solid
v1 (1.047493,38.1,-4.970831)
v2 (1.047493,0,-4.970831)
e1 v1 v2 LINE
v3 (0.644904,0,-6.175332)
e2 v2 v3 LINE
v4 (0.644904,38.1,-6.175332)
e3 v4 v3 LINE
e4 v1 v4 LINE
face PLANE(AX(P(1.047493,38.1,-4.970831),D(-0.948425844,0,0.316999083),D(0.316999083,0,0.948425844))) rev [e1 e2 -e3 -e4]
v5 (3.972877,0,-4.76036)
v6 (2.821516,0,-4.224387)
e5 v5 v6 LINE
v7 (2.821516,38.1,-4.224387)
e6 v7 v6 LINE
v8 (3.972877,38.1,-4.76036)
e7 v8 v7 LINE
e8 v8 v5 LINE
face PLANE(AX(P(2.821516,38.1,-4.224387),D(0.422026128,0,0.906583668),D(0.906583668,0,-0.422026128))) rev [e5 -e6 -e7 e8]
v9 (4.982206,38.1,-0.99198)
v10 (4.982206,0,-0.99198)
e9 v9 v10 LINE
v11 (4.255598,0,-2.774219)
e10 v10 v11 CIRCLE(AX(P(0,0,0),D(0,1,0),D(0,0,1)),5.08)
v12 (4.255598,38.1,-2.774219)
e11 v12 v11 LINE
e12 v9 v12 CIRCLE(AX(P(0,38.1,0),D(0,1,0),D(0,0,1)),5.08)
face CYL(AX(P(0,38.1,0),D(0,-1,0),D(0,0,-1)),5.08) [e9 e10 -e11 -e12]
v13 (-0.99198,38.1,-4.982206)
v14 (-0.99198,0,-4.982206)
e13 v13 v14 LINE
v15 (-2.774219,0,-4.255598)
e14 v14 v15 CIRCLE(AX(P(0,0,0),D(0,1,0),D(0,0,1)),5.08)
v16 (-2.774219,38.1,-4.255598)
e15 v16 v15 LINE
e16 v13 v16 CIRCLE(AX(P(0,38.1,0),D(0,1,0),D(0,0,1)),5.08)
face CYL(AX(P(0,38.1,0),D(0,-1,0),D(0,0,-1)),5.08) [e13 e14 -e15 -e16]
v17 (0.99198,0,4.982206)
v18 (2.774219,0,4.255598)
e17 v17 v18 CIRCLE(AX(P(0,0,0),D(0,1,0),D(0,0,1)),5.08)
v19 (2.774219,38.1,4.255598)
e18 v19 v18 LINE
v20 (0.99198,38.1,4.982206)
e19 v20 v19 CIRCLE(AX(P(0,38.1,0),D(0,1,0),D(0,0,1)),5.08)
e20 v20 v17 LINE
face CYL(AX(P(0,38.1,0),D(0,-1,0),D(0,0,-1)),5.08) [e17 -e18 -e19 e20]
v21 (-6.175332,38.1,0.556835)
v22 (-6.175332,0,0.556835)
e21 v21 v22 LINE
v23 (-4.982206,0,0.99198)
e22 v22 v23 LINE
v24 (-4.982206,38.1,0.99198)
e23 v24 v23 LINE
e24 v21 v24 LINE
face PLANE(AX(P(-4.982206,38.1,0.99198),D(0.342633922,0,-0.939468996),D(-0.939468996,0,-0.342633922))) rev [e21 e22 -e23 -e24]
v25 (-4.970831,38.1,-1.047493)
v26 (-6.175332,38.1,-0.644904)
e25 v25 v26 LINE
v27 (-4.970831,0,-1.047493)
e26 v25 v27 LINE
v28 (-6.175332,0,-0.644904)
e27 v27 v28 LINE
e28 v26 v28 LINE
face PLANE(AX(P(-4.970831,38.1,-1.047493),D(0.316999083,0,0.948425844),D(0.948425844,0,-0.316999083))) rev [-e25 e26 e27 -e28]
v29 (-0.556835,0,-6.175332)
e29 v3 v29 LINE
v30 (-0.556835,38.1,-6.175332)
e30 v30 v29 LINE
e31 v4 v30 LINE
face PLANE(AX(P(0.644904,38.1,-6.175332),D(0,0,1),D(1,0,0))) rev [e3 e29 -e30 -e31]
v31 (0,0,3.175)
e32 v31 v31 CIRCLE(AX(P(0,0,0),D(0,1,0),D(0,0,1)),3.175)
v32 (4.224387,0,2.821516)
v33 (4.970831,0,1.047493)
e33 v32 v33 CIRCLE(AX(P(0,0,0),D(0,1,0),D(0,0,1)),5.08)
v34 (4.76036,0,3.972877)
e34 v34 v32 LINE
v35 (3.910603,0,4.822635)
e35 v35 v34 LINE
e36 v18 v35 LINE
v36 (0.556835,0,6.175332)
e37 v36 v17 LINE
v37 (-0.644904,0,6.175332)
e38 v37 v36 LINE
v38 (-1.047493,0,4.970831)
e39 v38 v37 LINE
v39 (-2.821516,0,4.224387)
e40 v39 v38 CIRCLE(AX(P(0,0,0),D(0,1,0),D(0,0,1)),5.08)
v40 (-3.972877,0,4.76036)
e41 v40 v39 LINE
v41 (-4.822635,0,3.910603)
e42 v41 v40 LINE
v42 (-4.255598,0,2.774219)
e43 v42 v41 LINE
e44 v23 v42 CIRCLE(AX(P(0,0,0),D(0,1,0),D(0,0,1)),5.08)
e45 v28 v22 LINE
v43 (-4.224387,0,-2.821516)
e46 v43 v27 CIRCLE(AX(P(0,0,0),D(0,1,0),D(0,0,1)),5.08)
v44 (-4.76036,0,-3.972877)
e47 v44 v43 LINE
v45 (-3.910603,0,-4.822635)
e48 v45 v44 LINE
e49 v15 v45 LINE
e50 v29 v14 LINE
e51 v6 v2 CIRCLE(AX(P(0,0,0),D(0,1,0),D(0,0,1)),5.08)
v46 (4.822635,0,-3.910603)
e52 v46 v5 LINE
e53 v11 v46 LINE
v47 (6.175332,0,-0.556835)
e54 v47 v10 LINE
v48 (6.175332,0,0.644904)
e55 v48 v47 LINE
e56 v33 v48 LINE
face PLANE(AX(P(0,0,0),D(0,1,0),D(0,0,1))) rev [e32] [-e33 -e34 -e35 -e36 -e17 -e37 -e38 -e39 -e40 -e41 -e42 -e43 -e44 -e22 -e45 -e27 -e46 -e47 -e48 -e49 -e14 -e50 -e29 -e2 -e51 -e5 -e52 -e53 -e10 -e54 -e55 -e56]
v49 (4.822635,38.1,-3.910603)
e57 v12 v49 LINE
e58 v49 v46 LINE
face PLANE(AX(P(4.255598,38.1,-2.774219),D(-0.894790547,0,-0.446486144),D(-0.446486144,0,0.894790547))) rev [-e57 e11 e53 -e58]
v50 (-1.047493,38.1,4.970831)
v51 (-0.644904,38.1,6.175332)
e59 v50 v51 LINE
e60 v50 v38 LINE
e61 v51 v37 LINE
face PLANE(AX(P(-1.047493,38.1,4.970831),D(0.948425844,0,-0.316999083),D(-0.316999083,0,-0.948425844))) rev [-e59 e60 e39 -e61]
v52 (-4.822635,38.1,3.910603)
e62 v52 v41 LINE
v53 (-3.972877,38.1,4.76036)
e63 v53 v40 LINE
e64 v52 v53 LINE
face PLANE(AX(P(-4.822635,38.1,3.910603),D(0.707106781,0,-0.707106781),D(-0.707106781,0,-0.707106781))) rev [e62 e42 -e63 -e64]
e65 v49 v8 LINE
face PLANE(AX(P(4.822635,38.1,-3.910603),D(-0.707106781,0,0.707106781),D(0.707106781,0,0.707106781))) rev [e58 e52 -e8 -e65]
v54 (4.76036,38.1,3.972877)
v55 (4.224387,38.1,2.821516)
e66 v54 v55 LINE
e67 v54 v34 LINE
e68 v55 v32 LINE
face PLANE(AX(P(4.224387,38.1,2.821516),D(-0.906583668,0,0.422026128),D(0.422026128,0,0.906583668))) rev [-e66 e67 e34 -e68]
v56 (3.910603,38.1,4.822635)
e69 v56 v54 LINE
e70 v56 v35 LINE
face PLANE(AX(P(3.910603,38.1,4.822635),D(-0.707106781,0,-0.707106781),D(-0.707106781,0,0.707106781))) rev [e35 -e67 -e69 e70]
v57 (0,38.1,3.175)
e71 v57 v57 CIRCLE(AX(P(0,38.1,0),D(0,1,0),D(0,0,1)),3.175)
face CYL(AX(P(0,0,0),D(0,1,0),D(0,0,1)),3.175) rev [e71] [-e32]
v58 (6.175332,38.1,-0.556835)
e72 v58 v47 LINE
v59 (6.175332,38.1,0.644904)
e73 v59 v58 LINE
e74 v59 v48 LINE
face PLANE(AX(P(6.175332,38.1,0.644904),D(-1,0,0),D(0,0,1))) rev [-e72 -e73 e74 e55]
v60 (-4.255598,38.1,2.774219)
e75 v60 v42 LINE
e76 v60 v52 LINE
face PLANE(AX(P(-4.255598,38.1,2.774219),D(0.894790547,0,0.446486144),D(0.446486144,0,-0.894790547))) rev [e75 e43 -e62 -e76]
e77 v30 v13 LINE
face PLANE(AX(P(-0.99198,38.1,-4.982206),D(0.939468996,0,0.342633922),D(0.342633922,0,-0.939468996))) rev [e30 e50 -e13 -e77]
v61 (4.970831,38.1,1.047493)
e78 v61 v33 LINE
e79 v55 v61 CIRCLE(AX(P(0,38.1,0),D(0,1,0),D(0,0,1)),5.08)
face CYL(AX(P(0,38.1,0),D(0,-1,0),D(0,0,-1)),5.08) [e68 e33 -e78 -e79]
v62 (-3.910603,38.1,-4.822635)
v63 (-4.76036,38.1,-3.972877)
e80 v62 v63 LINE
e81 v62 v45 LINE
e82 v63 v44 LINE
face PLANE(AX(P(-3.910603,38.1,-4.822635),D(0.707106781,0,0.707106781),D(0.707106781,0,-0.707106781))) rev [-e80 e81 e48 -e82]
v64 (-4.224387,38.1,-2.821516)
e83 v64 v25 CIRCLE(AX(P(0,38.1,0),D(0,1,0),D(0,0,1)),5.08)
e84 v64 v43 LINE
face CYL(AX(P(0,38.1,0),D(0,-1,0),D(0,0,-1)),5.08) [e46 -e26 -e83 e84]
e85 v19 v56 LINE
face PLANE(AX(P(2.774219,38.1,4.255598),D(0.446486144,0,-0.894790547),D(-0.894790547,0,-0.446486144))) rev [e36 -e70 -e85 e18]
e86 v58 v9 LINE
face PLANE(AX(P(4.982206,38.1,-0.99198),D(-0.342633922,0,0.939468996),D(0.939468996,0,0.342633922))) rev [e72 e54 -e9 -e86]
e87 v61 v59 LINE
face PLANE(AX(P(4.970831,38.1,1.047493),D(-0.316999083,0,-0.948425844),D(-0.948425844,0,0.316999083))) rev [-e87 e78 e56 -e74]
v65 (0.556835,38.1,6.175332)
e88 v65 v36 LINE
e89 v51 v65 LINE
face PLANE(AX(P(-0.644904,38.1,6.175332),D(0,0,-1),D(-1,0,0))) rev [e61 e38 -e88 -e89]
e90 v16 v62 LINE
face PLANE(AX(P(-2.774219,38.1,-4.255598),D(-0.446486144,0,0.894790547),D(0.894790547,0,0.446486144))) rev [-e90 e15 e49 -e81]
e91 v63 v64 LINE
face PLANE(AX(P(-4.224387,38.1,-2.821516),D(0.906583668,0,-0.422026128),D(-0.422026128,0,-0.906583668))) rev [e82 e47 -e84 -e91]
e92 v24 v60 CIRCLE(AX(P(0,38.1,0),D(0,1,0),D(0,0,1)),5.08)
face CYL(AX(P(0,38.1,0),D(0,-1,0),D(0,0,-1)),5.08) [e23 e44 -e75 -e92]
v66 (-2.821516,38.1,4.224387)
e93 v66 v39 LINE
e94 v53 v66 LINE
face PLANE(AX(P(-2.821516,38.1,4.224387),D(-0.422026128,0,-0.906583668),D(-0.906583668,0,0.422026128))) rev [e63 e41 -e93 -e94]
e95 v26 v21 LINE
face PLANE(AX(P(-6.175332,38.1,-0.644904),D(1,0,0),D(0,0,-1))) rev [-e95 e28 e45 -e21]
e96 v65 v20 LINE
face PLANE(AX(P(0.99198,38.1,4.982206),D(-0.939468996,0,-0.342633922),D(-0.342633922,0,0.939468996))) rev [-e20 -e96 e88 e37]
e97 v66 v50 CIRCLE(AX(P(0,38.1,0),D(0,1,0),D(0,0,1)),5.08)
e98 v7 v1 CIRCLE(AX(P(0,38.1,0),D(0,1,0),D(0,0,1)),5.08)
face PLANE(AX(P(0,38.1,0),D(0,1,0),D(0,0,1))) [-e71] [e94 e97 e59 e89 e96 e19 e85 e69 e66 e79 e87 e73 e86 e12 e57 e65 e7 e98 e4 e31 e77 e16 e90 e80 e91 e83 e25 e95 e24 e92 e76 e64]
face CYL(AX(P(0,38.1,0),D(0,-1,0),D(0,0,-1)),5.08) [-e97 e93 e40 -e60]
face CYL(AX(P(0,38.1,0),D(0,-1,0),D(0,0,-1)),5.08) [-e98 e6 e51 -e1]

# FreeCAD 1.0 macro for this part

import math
import FreeCAD as App
import Part
import Sketcher

V = App.Vector
Q = App.Units.Quantity

doc = App.newDocument("Part")
body = doc.addObject("PartDesign::Body", "Body")

# Sketch on XZ plane
sketch1 = body.newObject("Sketcher::SketchObject", "Sketch")
sketch1.AttachmentSupport = (doc.getObject("XZ_Plane"), [""])
sketch1.MapMode = "FlatFace"
sketch1.addGeometry([
    Part.LineSegment(V(1, -5, 0), V(0.6, -6.2, 0)),  # 0
    Part.LineSegment(V(0.6, -6.2, 0), V(-0.6, -6.2, 0)),  # 1
    Part.LineSegment(V(-0.6, -6.2, 0), V(-1, -5, 0)),  # 2
    Part.ArcOfCircle(Part.Circle(V(0, 0, 0), V(0, 0, 1), 5.1), math.radians(-123), math.radians(-101)),  # 3
    Part.LineSegment(V(-2.8, -4.3, 0), V(-3.9, -4.8, 0)),  # 4
    Part.LineSegment(V(-3.9, -4.8, 0), V(-4.8, -4, 0)),  # 5
    Part.LineSegment(V(-4.8, -4, 0), V(-4.2, -2.8, 0)),  # 6
    Part.ArcOfCircle(Part.Circle(V(0, 0, 0), V(0, 0, 1), 5.1), math.radians(-168), math.radians(-146)),  # 7
    Part.LineSegment(V(-5, -1, 0), V(-6.2, -0.6, 0)),  # 8
    Part.LineSegment(V(-6.2, -0.6, 0), V(-6.2, 0.6, 0)),  # 9
    Part.LineSegment(V(-6.2, 0.6, 0), V(-5, 1, 0)),  # 10
    Part.ArcOfCircle(Part.Circle(V(0, 0, 0), V(0, 0, 1), 5.1), math.radians(147), math.radians(169)),  # 11
    Part.LineSegment(V(-4.3, 2.8, 0), V(-4.8, 3.9, 0)),  # 12
    Part.LineSegment(V(-4.8, 3.9, 0), V(-4, 4.8, 0)),  # 13
    Part.LineSegment(V(-4, 4.8, 0), V(-2.8, 4.2, 0)),  # 14
    Part.ArcOfCircle(Part.Circle(V(0, 0, 0), V(0, 0, 1), 5.1), math.radians(102), math.radians(124)),  # 15
    Part.LineSegment(V(-1, 5, 0), V(-0.6, 6.2, 0)),  # 16
    Part.LineSegment(V(-0.6, 6.2, 0), V(0.6, 6.2, 0)),  # 17
    Part.LineSegment(V(0.6, 6.2, 0), V(1, 5, 0)),  # 18
    Part.ArcOfCircle(Part.Circle(V(0, 0, 0), V(0, 0, 1), 5.1), math.radians(57), math.radians(79)),  # 19
    Part.LineSegment(V(2.8, 4.3, 0), V(3.9, 4.8, 0)),  # 20
    Part.LineSegment(V(3.9, 4.8, 0), V(4.8, 4, 0)),  # 21
    Part.LineSegment(V(4.8, 4, 0), V(4.2, 2.8, 0)),  # 22
    Part.ArcOfCircle(Part.Circle(V(0, 0, 0), V(0, 0, 1), 5.1), math.radians(12), math.radians(34)),  # 23
    Part.LineSegment(V(5, 1, 0), V(6.2, 0.6, 0)),  # 24
    Part.LineSegment(V(6.2, 0.6, 0), V(6.2, -0.6, 0)),  # 25
    Part.LineSegment(V(6.2, -0.6, 0), V(5, -1, 0)),  # 26
    Part.ArcOfCircle(Part.Circle(V(0, 0, 0), V(0, 0, 1), 5.1), math.radians(-33), math.radians(-11)),  # 27
    Part.LineSegment(V(4.3, -2.8, 0), V(4.8, -3.9, 0)),  # 28
    Part.LineSegment(V(4.8, -3.9, 0), V(4, -4.8, 0)),  # 29
    Part.LineSegment(V(4, -4.8, 0), V(2.8, -4.2, 0)),  # 30
    Part.ArcOfCircle(Part.Circle(V(0, 0, 0), V(0, 0, 1), 5.1), math.radians(-78), math.radians(-56)),  # 31
], False)
sketch1.addConstraint([
    Sketcher.Constraint("Coincident", 0, 2, 1, 1),
    Sketcher.Constraint("Coincident", 1, 2, 2, 1),
    Sketcher.Constraint("Coincident", 2, 2, 3, 2),
    Sketcher.Constraint("Coincident", 3, 1, 4, 1),
    Sketcher.Constraint("Coincident", 4, 2, 5, 1),
    Sketcher.Constraint("Coincident", 5, 2, 6, 1),
    Sketcher.Constraint("Coincident", 6, 2, 7, 2),
    Sketcher.Constraint("Coincident", 7, 1, 8, 1),
    Sketcher.Constraint("Coincident", 8, 2, 9, 1),
    Sketcher.Constraint("Coincident", 9, 2, 10, 1),
    Sketcher.Constraint("Coincident", 10, 2, 11, 2),
    Sketcher.Constraint("Coincident", 11, 1, 12, 1),
    Sketcher.Constraint("Coincident", 12, 2, 13, 1),
    Sketcher.Constraint("Coincident", 13, 2, 14, 1),
    Sketcher.Constraint("Coincident", 14, 2, 15, 2),
    Sketcher.Constraint("Coincident", 15, 1, 16, 1),
    Sketcher.Constraint("Coincident", 16, 2, 17, 1),
    Sketcher.Constraint("Coincident", 17, 2, 18, 1),
    Sketcher.Constraint("Coincident", 18, 2, 19, 2),
    Sketcher.Constraint("Coincident", 19, 1, 20, 1),
    Sketcher.Constraint("Coincident", 20, 2, 21, 1),
    Sketcher.Constraint("Coincident", 21, 2, 22, 1),
    Sketcher.Constraint("Coincident", 22, 2, 23, 2),
    Sketcher.Constraint("Coincident", 23, 1, 24, 1),
    Sketcher.Constraint("Coincident", 24, 2, 25, 1),
    Sketcher.Constraint("Coincident", 25, 2, 26, 1),
    Sketcher.Constraint("Coincident", 26, 2, 27, 2),
    Sketcher.Constraint("Coincident", 27, 1, 28, 1),
    Sketcher.Constraint("Coincident", 28, 2, 29, 1),
    Sketcher.Constraint("Coincident", 29, 2, 30, 1),
    Sketcher.Constraint("Coincident", 30, 2, 31, 2),
    Sketcher.Constraint("Coincident", 31, 1, 0, 1),
    Sketcher.Constraint("Horizontal", 1),
    Sketcher.Constraint("Vertical", 9),
    Sketcher.Constraint("Horizontal", 17),
    Sketcher.Constraint("Vertical", 25),
    Sketcher.Constraint("Coincident", 3, 3, -1, 1),
    Sketcher.Constraint("Coincident", 7, 3, -1, 1),
    Sketcher.Constraint("Coincident", 11, 3, -1, 1),
    Sketcher.Constraint("Coincident", 15, 3, -1, 1),
    Sketcher.Constraint("Coincident", 19, 3, -1, 1),
    Sketcher.Constraint("Coincident", 23, 3, -1, 1),
    Sketcher.Constraint("Coincident", 27, 3, -1, 1),
    Sketcher.Constraint("Coincident", 31, 3, -1, 1),
    Sketcher.Constraint("Equal", 3, 7),
    Sketcher.Constraint("Equal", 7, 11),
    Sketcher.Constraint("Equal", 11, 15),
    Sketcher.Constraint("Equal", 15, 19),
    Sketcher.Constraint("Equal", 19, 23),
    Sketcher.Constraint("Equal", 23, 27),
    Sketcher.Constraint("Equal", 27, 31),
    Sketcher.Constraint("Symmetric", 0, 2, 16, 2, -1, 1),
    Sketcher.Constraint("Symmetric", 4, 2, 20, 2, -1, 1),
    Sketcher.Constraint("Symmetric", 5, 2, 21, 2, -1, 1),
    Sketcher.Constraint("Symmetric", 8, 2, 24, 2, -1, 1),
    Sketcher.Constraint("Symmetric", 12, 2, 28, 2, -1, 1),
    Sketcher.Constraint("Symmetric", 13, 2, 29, 2, -1, 1),
    Sketcher.Constraint("Perpendicular", 0, 8),
    Sketcher.Constraint("Perpendicular", 2, 10),
    Sketcher.Constraint("Perpendicular", 4, 12),
    Sketcher.Constraint("Perpendicular", 5, 13),
    Sketcher.Constraint("Perpendicular", 6, 14),
    Sketcher.Constraint("Perpendicular", 8, 16),
    Sketcher.Constraint("Perpendicular", 10, 18),
    Sketcher.Constraint("Perpendicular", 12, 20),
    Sketcher.Constraint("Perpendicular", 14, 22),
    Sketcher.Constraint("Perpendicular", 16, 24),
    Sketcher.Constraint("Perpendicular", 18, 26),
    Sketcher.Constraint("Perpendicular", 20, 28),
    Sketcher.Constraint("Perpendicular", 22, 30),
    Sketcher.Constraint("Equal", 1, 17),
    Sketcher.Constraint("Equal", 17, 9),
    Sketcher.Constraint("Equal", 9, 25),
    Sketcher.Constraint("Equal", 0, 2),
    Sketcher.Constraint("Equal", 2, 4),
    Sketcher.Constraint("Equal", 4, 6),
    Sketcher.Constraint("Equal", 6, 8),
    Sketcher.Constraint("Equal", 8, 10),
    Sketcher.Constraint("Equal", 10, 12),
    Sketcher.Constraint("Equal", 5, 13),
    Sketcher.Constraint("Equal", 12, 14),
    Sketcher.Constraint("Radius", 3, Q("0.2 in")),
    Sketcher.Constraint("Angle", 5, Q("135 deg")),
    Sketcher.Constraint("Distance", 0, Q("0.05 in")),
    Sketcher.Constraint("DistanceX", 1, 2, 1, 1, 1.201739),
    Sketcher.Constraint("DistanceX", 8, 2, 7, 1, 1.204501),
    Sketcher.Constraint("Distance", 5, 1.201739),
    Sketcher.Constraint("DistanceY", 0, 2, -1, 1, 6.175332),
    Sketcher.Constraint("DistanceX", 3, 1, -1, 1, 2.774219),
    Sketcher.Constraint("DistanceX", 5, 2, -1, 1, 4.76036),
])
pad1 = body.newObject("PartDesign::Pad", "Pad")
pad1.Profile = sketch1
pad1.Length = Q("1.5 in")
pad1.Reversed = True

# Sketch on XZ plane
sketch2 = body.newObject("Sketcher::SketchObject", "Sketch001")
sketch2.AttachmentSupport = (doc.getObject("XZ_Plane"), [""])
sketch2.MapMode = "FlatFace"
sketch2.AttachmentOffset = App.Placement(V(0, 0, -1.5 * 25.4), App.Rotation())
sketch2.addGeometry(Part.Circle(V(0, 0, 0), V(0, 0, 1), 3.2), False)
sketch2.addConstraint([
    Sketcher.Constraint("Coincident", 0, 3, -1, 1),
    Sketcher.Constraint("Diameter", 0, Q("0.25 in")),
])
pocket1 = body.newObject("PartDesign::Pocket", "Pocket")
pocket1.Profile = sketch2
pocket1.Type = "ThroughAll"
pocket1.Reversed = True

doc.recompute()
